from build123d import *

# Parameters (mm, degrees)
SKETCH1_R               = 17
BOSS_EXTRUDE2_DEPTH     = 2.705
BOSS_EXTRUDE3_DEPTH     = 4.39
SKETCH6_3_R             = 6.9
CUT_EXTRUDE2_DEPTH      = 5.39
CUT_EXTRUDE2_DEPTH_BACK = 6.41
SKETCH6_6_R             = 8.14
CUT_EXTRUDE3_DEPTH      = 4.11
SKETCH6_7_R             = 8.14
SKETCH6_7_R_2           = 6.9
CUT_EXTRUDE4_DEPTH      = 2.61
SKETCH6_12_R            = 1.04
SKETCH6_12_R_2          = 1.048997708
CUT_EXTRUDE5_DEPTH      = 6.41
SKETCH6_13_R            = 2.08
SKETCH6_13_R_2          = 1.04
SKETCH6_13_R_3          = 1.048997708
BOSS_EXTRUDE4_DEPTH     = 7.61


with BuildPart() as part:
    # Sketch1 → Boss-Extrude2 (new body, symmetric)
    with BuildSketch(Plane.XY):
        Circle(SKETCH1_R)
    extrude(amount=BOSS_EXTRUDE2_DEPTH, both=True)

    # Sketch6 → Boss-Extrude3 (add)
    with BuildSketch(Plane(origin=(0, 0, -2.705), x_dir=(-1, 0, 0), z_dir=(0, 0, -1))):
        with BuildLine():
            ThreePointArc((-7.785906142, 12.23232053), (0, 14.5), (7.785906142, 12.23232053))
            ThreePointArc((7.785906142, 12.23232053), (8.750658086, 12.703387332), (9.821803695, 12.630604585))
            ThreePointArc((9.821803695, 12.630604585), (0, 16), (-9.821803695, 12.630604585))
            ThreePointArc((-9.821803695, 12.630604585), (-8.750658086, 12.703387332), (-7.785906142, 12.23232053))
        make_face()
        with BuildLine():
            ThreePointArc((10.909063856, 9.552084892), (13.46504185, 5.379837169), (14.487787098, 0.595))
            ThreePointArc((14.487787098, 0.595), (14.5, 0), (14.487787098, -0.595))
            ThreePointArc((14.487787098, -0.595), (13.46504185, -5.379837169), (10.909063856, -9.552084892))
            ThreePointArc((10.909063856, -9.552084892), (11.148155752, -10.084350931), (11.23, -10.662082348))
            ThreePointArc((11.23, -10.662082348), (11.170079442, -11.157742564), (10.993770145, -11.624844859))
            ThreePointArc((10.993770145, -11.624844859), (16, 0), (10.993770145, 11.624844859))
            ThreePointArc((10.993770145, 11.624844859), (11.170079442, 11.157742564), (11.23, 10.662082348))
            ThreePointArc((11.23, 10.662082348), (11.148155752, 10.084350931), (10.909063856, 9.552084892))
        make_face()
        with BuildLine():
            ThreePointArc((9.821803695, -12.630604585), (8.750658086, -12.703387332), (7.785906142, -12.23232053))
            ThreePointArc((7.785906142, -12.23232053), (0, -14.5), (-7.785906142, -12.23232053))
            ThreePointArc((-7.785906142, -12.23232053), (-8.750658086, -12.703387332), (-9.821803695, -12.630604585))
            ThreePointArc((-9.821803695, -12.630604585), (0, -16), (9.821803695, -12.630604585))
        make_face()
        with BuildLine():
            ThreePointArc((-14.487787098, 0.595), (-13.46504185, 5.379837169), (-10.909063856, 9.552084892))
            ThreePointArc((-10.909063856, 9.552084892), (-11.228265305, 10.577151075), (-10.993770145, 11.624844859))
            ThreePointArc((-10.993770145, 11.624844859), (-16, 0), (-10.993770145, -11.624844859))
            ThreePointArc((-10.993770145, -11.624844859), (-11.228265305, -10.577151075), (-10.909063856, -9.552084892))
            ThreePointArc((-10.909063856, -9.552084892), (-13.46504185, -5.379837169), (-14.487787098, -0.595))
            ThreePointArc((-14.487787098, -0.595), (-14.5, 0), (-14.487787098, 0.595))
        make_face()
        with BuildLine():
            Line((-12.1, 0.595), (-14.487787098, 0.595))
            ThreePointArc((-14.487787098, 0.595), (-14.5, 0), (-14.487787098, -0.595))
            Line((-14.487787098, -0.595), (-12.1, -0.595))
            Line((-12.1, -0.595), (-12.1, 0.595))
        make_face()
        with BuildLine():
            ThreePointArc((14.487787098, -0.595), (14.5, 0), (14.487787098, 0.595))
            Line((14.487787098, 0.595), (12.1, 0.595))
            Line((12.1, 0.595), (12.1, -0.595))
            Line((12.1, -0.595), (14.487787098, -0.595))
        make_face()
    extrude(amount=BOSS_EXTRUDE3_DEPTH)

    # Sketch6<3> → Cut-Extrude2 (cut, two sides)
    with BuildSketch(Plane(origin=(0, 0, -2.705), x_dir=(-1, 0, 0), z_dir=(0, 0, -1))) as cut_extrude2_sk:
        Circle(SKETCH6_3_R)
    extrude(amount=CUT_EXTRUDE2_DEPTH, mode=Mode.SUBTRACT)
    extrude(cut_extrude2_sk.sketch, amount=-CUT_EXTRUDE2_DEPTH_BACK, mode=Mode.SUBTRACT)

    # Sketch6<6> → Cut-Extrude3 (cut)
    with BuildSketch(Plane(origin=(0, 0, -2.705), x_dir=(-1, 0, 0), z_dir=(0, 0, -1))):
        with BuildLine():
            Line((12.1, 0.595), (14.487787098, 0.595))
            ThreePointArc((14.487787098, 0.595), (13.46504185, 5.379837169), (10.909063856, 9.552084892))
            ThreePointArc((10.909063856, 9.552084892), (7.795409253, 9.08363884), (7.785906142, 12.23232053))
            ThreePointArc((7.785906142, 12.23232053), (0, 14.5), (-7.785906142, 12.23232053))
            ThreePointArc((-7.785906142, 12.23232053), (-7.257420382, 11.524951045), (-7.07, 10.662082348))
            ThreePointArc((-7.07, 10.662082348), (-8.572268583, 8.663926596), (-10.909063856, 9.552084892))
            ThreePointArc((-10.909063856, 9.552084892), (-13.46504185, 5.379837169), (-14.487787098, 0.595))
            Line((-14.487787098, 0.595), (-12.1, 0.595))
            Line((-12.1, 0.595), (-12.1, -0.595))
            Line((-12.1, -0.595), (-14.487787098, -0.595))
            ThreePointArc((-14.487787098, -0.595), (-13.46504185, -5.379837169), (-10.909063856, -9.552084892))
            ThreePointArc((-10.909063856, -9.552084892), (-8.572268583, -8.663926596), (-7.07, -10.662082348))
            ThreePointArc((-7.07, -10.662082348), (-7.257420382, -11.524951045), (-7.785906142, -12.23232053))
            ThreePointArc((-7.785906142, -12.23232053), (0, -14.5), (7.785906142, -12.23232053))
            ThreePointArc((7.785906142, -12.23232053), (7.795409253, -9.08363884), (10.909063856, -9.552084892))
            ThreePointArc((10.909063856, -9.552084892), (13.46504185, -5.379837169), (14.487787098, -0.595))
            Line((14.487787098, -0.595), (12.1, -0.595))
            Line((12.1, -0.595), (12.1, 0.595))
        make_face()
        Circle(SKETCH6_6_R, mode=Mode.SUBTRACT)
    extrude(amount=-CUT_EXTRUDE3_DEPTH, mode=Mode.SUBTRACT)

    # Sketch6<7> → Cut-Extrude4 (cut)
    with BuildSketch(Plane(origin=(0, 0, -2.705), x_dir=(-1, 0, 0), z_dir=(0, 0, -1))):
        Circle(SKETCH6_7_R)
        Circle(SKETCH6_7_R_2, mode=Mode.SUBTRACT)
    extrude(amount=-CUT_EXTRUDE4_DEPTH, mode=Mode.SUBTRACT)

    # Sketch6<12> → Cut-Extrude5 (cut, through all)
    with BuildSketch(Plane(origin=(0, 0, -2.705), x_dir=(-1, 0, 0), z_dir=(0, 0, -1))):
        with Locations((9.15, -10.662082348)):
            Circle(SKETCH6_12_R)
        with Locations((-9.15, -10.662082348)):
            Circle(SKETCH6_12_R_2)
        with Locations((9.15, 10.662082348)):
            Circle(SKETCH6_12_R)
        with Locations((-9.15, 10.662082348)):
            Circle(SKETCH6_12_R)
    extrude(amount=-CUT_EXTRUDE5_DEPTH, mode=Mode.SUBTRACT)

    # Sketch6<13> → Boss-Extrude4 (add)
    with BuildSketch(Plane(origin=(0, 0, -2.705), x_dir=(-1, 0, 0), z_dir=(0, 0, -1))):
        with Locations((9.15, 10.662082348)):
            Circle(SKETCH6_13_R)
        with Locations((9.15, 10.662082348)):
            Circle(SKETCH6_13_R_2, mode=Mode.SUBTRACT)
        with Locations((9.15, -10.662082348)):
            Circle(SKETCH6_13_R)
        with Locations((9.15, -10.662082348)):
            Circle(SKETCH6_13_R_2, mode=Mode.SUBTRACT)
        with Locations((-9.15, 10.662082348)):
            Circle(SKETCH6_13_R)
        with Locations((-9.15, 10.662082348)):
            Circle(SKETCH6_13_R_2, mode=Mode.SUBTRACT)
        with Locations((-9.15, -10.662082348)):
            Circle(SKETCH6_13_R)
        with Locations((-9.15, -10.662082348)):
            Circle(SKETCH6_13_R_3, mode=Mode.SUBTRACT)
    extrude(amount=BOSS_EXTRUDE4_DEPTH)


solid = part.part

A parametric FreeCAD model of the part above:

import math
import FreeCAD as App
import Part
import Sketcher

V = App.Vector

doc = App.newDocument("Part")
body = doc.addObject("PartDesign::Body", "Body")

# Sketch on XY plane
sketch1 = body.newObject("Sketcher::SketchObject", "Sketch")
sketch1.AttachmentSupport = (doc.getObject("XY_Plane"), [""])
sketch1.MapMode = "FlatFace"
sketch1.addGeometry(Part.Circle(V(0, 0, 0), V(0, 0, 1), 17), False)
sketch1.addConstraint([
    Sketcher.Constraint("Coincident", 0, 3, -1, 1),
    Sketcher.Constraint("Diameter", 0, 34.0),
])
pad1 = body.newObject("PartDesign::Pad", "Pad")
pad1.Profile = sketch1
pad1.Length = 5.41
pad1.Midplane = True

# Sketch on XY plane
sketch2 = body.newObject("Sketcher::SketchObject", "Sketch001")
sketch2.AttachmentSupport = (doc.getObject("XY_Plane"), [""])
sketch2.MapMode = "FlatFace"
sketch2.AttachmentOffset = App.Placement(V(0, 0, -2.705), App.Rotation())
sketch2.addGeometry([
    Part.ArcOfCircle(Part.Circle(V(0, 0, 0), V(0, 0, 1), 14.5), math.radians(58), math.radians(122)),  # 0
    Part.ArcOfCircle(Part.Circle(V(-9.2, 10.7, 0), V(0, 0, 1), 2.1), math.radians(49), math.radians(109)),  # 1
    Part.ArcOfCircle(Part.Circle(V(0, 0, 0), V(0, 0, 1), 16), math.radians(52), math.radians(128)),  # 2
    Part.ArcOfCircle(Part.Circle(V(9.2, 10.7, 0), V(0, 0, 1), 2.1), math.radians(71), math.radians(131)),  # 3
    Part.ArcOfCircle(Part.Circle(V(0, 0, 0), V(0, 0, 1), 14.5), math.radians(139), math.radians(178)),  # 4
    Part.LineSegment(V(-14.5, 0.6, 0), V(-12.1, 0.6, 0)),  # 5
    Part.LineSegment(V(-12.1, 0.6, 0), V(-12.1, -0.6, 0)),  # 6
    Part.LineSegment(V(-12.1, -0.6, 0), V(-14.5, -0.6, 0)),  # 7
    Part.ArcOfCircle(Part.Circle(V(0, 0, 0), V(0, 0, 1), 14.5), math.radians(-178), math.radians(-139)),  # 8
    Part.ArcOfCircle(Part.Circle(V(-9.1, -10.7, 0), V(0, 0, 1), 2.1), math.radians(148), math.radians(180)),  # 9
    Part.ArcOfCircle(Part.Circle(V(-9.2, -10.7, 0), V(0, 0, 1), 2.1), math.radians(180), math.radians(208)),  # 10
    Part.ArcOfCircle(Part.Circle(V(0, 0, 0), V(0, 0, 1), 16), math.radians(133), math.radians(227)),  # 11
    Part.ArcOfCircle(Part.Circle(V(-9.2, 10.7, 0), V(0, 0, 1), 2.1), math.radians(152), math.radians(180)),  # 12
    Part.ArcOfCircle(Part.Circle(V(-9.1, 10.7, 0), V(0, 0, 1), 2.1), math.radians(-180), math.radians(-148)),  # 13
    Part.ArcOfCircle(Part.Circle(V(-9.2, -10.7, 0), V(0, 0, 1), 2.1), math.radians(-109), math.radians(-49)),  # 14
    Part.ArcOfCircle(Part.Circle(V(0, 0, 0), V(0, 0, 1), 14.5), math.radians(-122), math.radians(-58)),  # 15
    Part.ArcOfCircle(Part.Circle(V(9.2, -10.7, 0), V(0, 0, 1), 2.1), math.radians(-131), math.radians(-71)),  # 16
    Part.ArcOfCircle(Part.Circle(V(0, 0, 0), V(0, 0, 1), 16), math.radians(-128), math.radians(-52)),  # 17
    Part.ArcOfCircle(Part.Circle(V(0, 0, 0), V(0, 0, 1), 14.5), math.radians(2), math.radians(41)),  # 18
    Part.ArcOfCircle(Part.Circle(V(9.1, 10.7, 0), V(0, 0, 1), 2.1), math.radians(-32), math.radians(28)),  # 19
    Part.ArcOfCircle(Part.Circle(V(0, 0, 0), V(0, 0, 1), 16), math.radians(-47), math.radians(47)),  # 20
    Part.ArcOfCircle(Part.Circle(V(9.1, -10.7, 0), V(0, 0, 1), 2.1), math.radians(-28), math.radians(32)),  # 21
    Part.ArcOfCircle(Part.Circle(V(0, 0, 0), V(0, 0, 1), 14.5), math.radians(-41), math.radians(-2)),  # 22
    Part.LineSegment(V(14.5, -0.6, 0), V(12.1, -0.6, 0)),  # 23
    Part.LineSegment(V(12.1, -0.6, 0), V(12.1, 0.6, 0)),  # 24
    Part.LineSegment(V(12.1, 0.6, 0), V(14.5, 0.6, 0)),  # 25
], False)
sketch2.addConstraint([
    Sketcher.Constraint("Coincident", 0, 2, 1, 1),
    Sketcher.Constraint("Coincident", 1, 2, 2, 2),
    Sketcher.Constraint("Coincident", 2, 1, 3, 1),
    Sketcher.Constraint("Coincident", 3, 2, 0, 1),
    Sketcher.Constraint("Coincident", 4, 2, 5, 1),
    Sketcher.Constraint("Coincident", 5, 2, 6, 1),
    Sketcher.Constraint("Coincident", 6, 2, 7, 1),
    Sketcher.Constraint("Coincident", 7, 2, 8, 1),
    Sketcher.Constraint("Coincident", 8, 2, 9, 1),
    Sketcher.Constraint("Tangent", 9, 2, 10, 1),
    Sketcher.Constraint("Coincident", 10, 2, 11, 2),
    Sketcher.Constraint("Coincident", 11, 1, 12, 1),
    Sketcher.Constraint("Tangent", 12, 2, 13, 1),
    Sketcher.Constraint("Coincident", 13, 2, 4, 1),
    Sketcher.Constraint("Coincident", 14, 2, 15, 1),
    Sketcher.Constraint("Coincident", 15, 2, 16, 1),
    Sketcher.Constraint("Coincident", 16, 2, 17, 2),
    Sketcher.Constraint("Coincident", 17, 1, 14, 1),
    Sketcher.Constraint("Coincident", 18, 2, 19, 1),
    Sketcher.Constraint("Coincident", 19, 2, 20, 2),
    Sketcher.Constraint("Coincident", 20, 1, 21, 1),
    Sketcher.Constraint("Coincident", 21, 2, 22, 1),
    Sketcher.Constraint("Coincident", 22, 2, 23, 1),
    Sketcher.Constraint("Coincident", 23, 2, 24, 1),
    Sketcher.Constraint("Coincident", 24, 2, 25, 1),
    Sketcher.Constraint("Coincident", 25, 2, 18, 1),
    Sketcher.Constraint("Horizontal", 5),
    Sketcher.Constraint("Vertical", 6),
    Sketcher.Constraint("Horizontal", 7),
    Sketcher.Constraint("Horizontal", 23),
    Sketcher.Constraint("Vertical", 24),
    Sketcher.Constraint("Horizontal", 25),
    Sketcher.Constraint("Coincident", 0, 3, -1, 1),
    Sketcher.Constraint("Coincident", 2, 3, -1, 1),
    Sketcher.Constraint("Coincident", 4, 3, -1, 1),
    Sketcher.Constraint("Coincident", 8, 3, -1, 1),
    Sketcher.Constraint("Coincident", 11, 3, -1, 1),
    Sketcher.Constraint("Coincident", 15, 3, -1, 1),
    Sketcher.Constraint("Coincident", 17, 3, -1, 1),
    Sketcher.Constraint("Coincident", 18, 3, -1, 1),
    Sketcher.Constraint("Coincident", 20, 3, -1, 1),
    Sketcher.Constraint("Coincident", 22, 3, -1, 1),
    Sketcher.Constraint("Coincident", 12, 3, 1, 3),
    Sketcher.Constraint("Coincident", 14, 3, 9, 3),
    Sketcher.Constraint("Coincident", 19, 3, 3, 3),
    Sketcher.Constraint("Coincident", 21, 3, 16, 3),
    Sketcher.Constraint("Equal", 1, 3),
    Sketcher.Constraint("Equal", 0, 4),
    Sketcher.Constraint("Equal", 4, 8),
    Sketcher.Constraint("Equal", 3, 9),
    Sketcher.Constraint("Equal", 9, 10),
    Sketcher.Constraint("Equal", 2, 11),
    Sketcher.Constraint("Equal", 10, 12),
    Sketcher.Constraint("Equal", 12, 13),
    Sketcher.Constraint("Equal", 13, 14),
    Sketcher.Constraint("Equal", 8, 15),
    Sketcher.Constraint("Equal", 14, 16),
    Sketcher.Constraint("Equal", 11, 17),
    Sketcher.Constraint("Equal", 15, 18),
    Sketcher.Constraint("Equal", 16, 19),
    Sketcher.Constraint("Equal", 17, 20),
    Sketcher.Constraint("Equal", 19, 21),
    Sketcher.Constraint("Equal", 18, 22),
    Sketcher.Constraint("Symmetric", 3, 3, 9, 3, -1, 1),
    Sketcher.Constraint("Symmetric", 1, 3, 16, 3, -1, 1),
    Sketcher.Constraint("Symmetric", 5, 2, 23, 2, -1, 1),
    Sketcher.Constraint("Symmetric", 1, 3, 3, 3, -2),
    Sketcher.Constraint("Horizontal", 21, 3, 9, 2),
    Sketcher.Constraint("Horizontal", 19, 3, 12, 2),
    Sketcher.Constraint("Horizontal", 7, 2, 22, 2),
    Sketcher.Constraint("Horizontal", 5, 2, 24, 2),
    Sketcher.Constraint("Radius", 2, 16.0),
    Sketcher.Constraint("Radius", 0, 14.5),
    Sketcher.Constraint("Radius", 1, 2.08),
    Sketcher.Constraint("DistanceY", 6, 2, 6, 1, 1.19),
    Sketcher.Constraint("DistanceX", 5, 2, -1, 1, 12.1),
    Sketcher.Constraint("DistanceX", 1, 3, 3, 3, 18.3),
    Sketcher.Constraint("DistanceY", -1, 1, 0, 2, 12.232321),
])
pad2 = body.newObject("PartDesign::Pad", "Pad001")
pad2.Profile = sketch2
pad2.Length = 4.39
pad2.Reversed = True

# Sketch on XY plane
sketch3 = body.newObject("Sketcher::SketchObject", "Sketch002")
sketch3.AttachmentSupport = (doc.getObject("XY_Plane"), [""])
sketch3.MapMode = "FlatFace"
sketch3.AttachmentOffset = App.Placement(V(0, 0, -2.705), App.Rotation())
sketch3.addGeometry(Part.Circle(V(0, 0, 0), V(0, 0, 1), 7), False)
sketch3.addConstraint([
    Sketcher.Constraint("Coincident", 0, 3, -1, 1),
    Sketcher.Constraint("Diameter", 0, 13.8),
])
pocket1 = body.newObject("PartDesign::Pocket", "Pocket")
pocket1.Profile = sketch3
pocket1.Type = "ThroughAll"
pocket1.Midplane = True

# Sketch on XY plane
sketch4 = body.newObject("Sketcher::SketchObject", "Sketch003")
sketch4.AttachmentSupport = (doc.getObject("XY_Plane"), [""])
sketch4.MapMode = "FlatFace"
sketch4.AttachmentOffset = App.Placement(V(0, 0, -2.705), App.Rotation())
sketch4.addGeometry([
    Part.LineSegment(V(-12.1, 0.6, 0), V(-14.5, 0.6, 0)),  # 0
    Part.ArcOfCircle(Part.Circle(V(0, 0, 0), V(0, 0, 1), 14.5), math.radians(139), math.radians(178)),  # 1
    Part.ArcOfCircle(Part.Circle(V(-9.2, 10.7, 0), V(0, 0, 1), 2.1), math.radians(-148), math.radians(49)),  # 2
    Part.ArcOfCircle(Part.Circle(V(0, 0, 0), V(0, 0, 1), 14.5), math.radians(58), math.radians(122)),  # 3
    Part.ArcOfCircle(Part.Circle(V(9.2, 10.7, 0), V(0, 0, 1), 2.1), math.radians(131), math.radians(180)),  # 4
    Part.ArcOfCircle(Part.Circle(V(9.2, 10.7, 0), V(0, 0, 1), 2.1), math.radians(180), math.radians(328)),  # 5
    Part.ArcOfCircle(Part.Circle(V(0, 0, 0), V(0, 0, 1), 14.5), math.radians(2), math.radians(41)),  # 6
    Part.LineSegment(V(14.5, 0.6, 0), V(12.1, 0.6, 0)),  # 7
    Part.LineSegment(V(12.1, 0.6, 0), V(12.1, -0.6, 0)),  # 8
    Part.LineSegment(V(12.1, -0.6, 0), V(14.5, -0.6, 0)),  # 9
    Part.ArcOfCircle(Part.Circle(V(0, 0, 0), V(0, 0, 1), 14.5), math.radians(-41), math.radians(-2)),  # 10
    Part.ArcOfCircle(Part.Circle(V(9.2, -10.7, 0), V(0, 0, 1), 2.1), math.radians(32), math.radians(180)),  # 11
    Part.ArcOfCircle(Part.Circle(V(9.2, -10.7, 0), V(0, 0, 1), 2.1), math.radians(-180), math.radians(-131)),  # 12
    Part.ArcOfCircle(Part.Circle(V(0, 0, 0), V(0, 0, 1), 14.5), math.radians(-122), math.radians(-58)),  # 13
    Part.ArcOfCircle(Part.Circle(V(-9.2, -10.7, 0), V(0, 0, 1), 2.1), math.radians(-49), math.radians(148)),  # 14
    Part.ArcOfCircle(Part.Circle(V(0, 0, 0), V(0, 0, 1), 14.5), math.radians(-178), math.radians(-139)),  # 15
    Part.LineSegment(V(-14.5, -0.6, 0), V(-12.1, -0.6, 0)),  # 16
    Part.LineSegment(V(-12.1, -0.6, 0), V(-12.1, 0.6, 0)),  # 17
    Part.Circle(V(0, 0, 0), V(0, 0, 1), 8.1),  # 18
], False)
sketch4.addConstraint([
    Sketcher.Constraint("Coincident", 0, 2, 1, 2),
    Sketcher.Constraint("Coincident", 1, 1, 2, 1),
    Sketcher.Constraint("Coincident", 2, 2, 3, 2),
    Sketcher.Constraint("Coincident", 3, 1, 4, 1),
    Sketcher.Constraint("Tangent", 4, 2, 5, 1),
    Sketcher.Constraint("Coincident", 5, 2, 6, 2),
    Sketcher.Constraint("Coincident", 6, 1, 7, 1),
    Sketcher.Constraint("Coincident", 7, 2, 8, 1),
    Sketcher.Constraint("Coincident", 8, 2, 9, 1),
    Sketcher.Constraint("Coincident", 9, 2, 10, 2),
    Sketcher.Constraint("Coincident", 10, 1, 11, 1),
    Sketcher.Constraint("Tangent", 11, 2, 12, 1),
    Sketcher.Constraint("Coincident", 12, 2, 13, 2),
    Sketcher.Constraint("Coincident", 13, 1, 14, 1),
    Sketcher.Constraint("Coincident", 14, 2, 15, 2),
    Sketcher.Constraint("Coincident", 15, 1, 16, 1),
    Sketcher.Constraint("Coincident", 16, 2, 17, 1),
    Sketcher.Constraint("Coincident", 17, 2, 0, 1),
    Sketcher.Constraint("Horizontal", 0),
    Sketcher.Constraint("Horizontal", 7),
    Sketcher.Constraint("Vertical", 8),
    Sketcher.Constraint("Horizontal", 9),
    Sketcher.Constraint("Horizontal", 16),
    Sketcher.Constraint("Vertical", 17),
    Sketcher.Constraint("Coincident", 1, 3, -1, 1),
    Sketcher.Constraint("Coincident", 3, 3, -1, 1),
    Sketcher.Constraint("Coincident", 6, 3, -1, 1),
    Sketcher.Constraint("Coincident", 10, 3, -1, 1),
    Sketcher.Constraint("Coincident", 13, 3, -1, 1),
    Sketcher.Constraint("Coincident", 15, 3, -1, 1),
    Sketcher.Constraint("Coincident", 18, 3, -1, 1),
    Sketcher.Constraint("Equal", 1, 3),
    Sketcher.Constraint("Equal", 2, 4),
    Sketcher.Constraint("Equal", 4, 5),
    Sketcher.Constraint("Equal", 3, 6),
    Sketcher.Constraint("Equal", 6, 10),
    Sketcher.Constraint("Equal", 5, 11),
    Sketcher.Constraint("Equal", 11, 12),
    Sketcher.Constraint("Equal", 10, 13),
    Sketcher.Constraint("Equal", 12, 14),
    Sketcher.Constraint("Equal", 13, 15),
    Sketcher.Constraint("Symmetric", 2, 3, 11, 3, -1, 1),
    Sketcher.Constraint("Symmetric", 4, 3, 14, 3, -1, 1),
    Sketcher.Constraint("Symmetric", 7, 2, 16, 2, -1, 1),
    Sketcher.Constraint("Symmetric", 2, 3, 4, 3, -2),
    Sketcher.Constraint("Horizontal", 5, 3, 4, 2),
    Sketcher.Constraint("Horizontal", 0, 2, 6, 1),
    Sketcher.Constraint("Horizontal", 14, 3, 11, 2),
    Sketcher.Constraint("Horizontal", 9, 2, 15, 1),
    Sketcher.Constraint("Radius", 1, 14.5),
    Sketcher.Constraint("Diameter", 18, 16.28),
    Sketcher.Constraint("Radius", 2, 2.08),
    Sketcher.Constraint("DistanceY", 8, 2, 8, 1, 1.19),
    Sketcher.Constraint("DistanceX", -1, 1, 7, 2, 12.1),
    Sketcher.Constraint("DistanceX", 2, 3, 4, 3, 18.3),
    Sketcher.Constraint("DistanceY", -1, 1, 2, 2, 12.232321),
])
pocket2 = body.newObject("PartDesign::Pocket", "Pocket001")
pocket2.Profile = sketch4
pocket2.Length = 4.11
pocket2.Reversed = True

# Sketch on XY plane
sketch5 = body.newObject("Sketcher::SketchObject", "Sketch004")
sketch5.AttachmentSupport = (doc.getObject("XY_Plane"), [""])
sketch5.MapMode = "FlatFace"
sketch5.AttachmentOffset = App.Placement(V(0, 0, -2.705), App.Rotation())
sketch5.addGeometry([
    Part.Circle(V(0, 0, 0), V(0, 0, 1), 8),
    Part.Circle(V(0, 0, 0), V(0, 0, 1), 7),
], False)
sketch5.addConstraint([
    Sketcher.Constraint("Coincident", 0, 3, -1, 1),
    Sketcher.Constraint("Coincident", 1, 3, -1, 1),
    Sketcher.Constraint("Diameter", 1, 13.8),
    Sketcher.Constraint("Diameter", 0, 16.28),
])
pocket3 = body.newObject("PartDesign::Pocket", "Pocket002")
pocket3.Profile = sketch5
pocket3.Length = 2.61
pocket3.Reversed = True

# Sketch on XY plane
sketch6 = body.newObject("Sketcher::SketchObject", "Sketch005")
sketch6.AttachmentSupport = (doc.getObject("XY_Plane"), [""])
sketch6.MapMode = "FlatFace"
sketch6.AttachmentOffset = App.Placement(V(0, 0, -2.705), App.Rotation())
sketch6.addGeometry([
    Part.Circle(V(-9.2, -10.7, 0), V(0, 0, 1), 1),
    Part.Circle(V(9.2, -10.7, 0), V(0, 0, 1), 1),
    Part.Circle(V(-9.2, 10.7, 0), V(0, 0, 1), 1),
    Part.Circle(V(9.2, 10.7, 0), V(0, 0, 1), 1),
], False)
sketch6.addConstraint([
    Sketcher.Constraint("Equal", 0, 2),
    Sketcher.Constraint("Equal", 2, 3),
    Sketcher.Constraint("Symmetric", 1, 3, 2, 3, -1, 1),
    Sketcher.Constraint("Symmetric", 0, 3, 3, 3, -1, 1),
    Sketcher.Constraint("Symmetric", 0, 3, 1, 3, -2),
    Sketcher.Constraint("Diameter", 0, 2.08),
    Sketcher.Constraint("DistanceX", 0, 3, 1, 3, 18.3),
    Sketcher.Constraint("Diameter", 1, 2.097995),
    Sketcher.Constraint("DistanceY", 0, 3, -1, 1, 10.662082),
])
pocket4 = body.newObject("PartDesign::Pocket", "Pocket003")
pocket4.Profile = sketch6
pocket4.Type = "ThroughAll"
pocket4.Reversed = True

# Sketch on XY plane
sketch7 = body.newObject("Sketcher::SketchObject", "Sketch006")
sketch7.AttachmentSupport = (doc.getObject("XY_Plane"), [""])
sketch7.MapMode = "FlatFace"
sketch7.AttachmentOffset = App.Placement(V(0, 0, -2.705), App.Rotation())
sketch7.addGeometry([
    Part.Circle(V(-9.2, 10.7, 0), V(0, 0, 1), 2.1),  # 0
    Part.Circle(V(-9.2, 10.7, 0), V(0, 0, 1), 1),  # 1
    Part.Circle(V(-9.2, -10.7, 0), V(0, 0, 1), 2.1),  # 2
    Part.Circle(V(-9.2, -10.7, 0), V(0, 0, 1), 1),  # 3
    Part.Circle(V(9.2, 10.7, 0), V(0, 0, 1), 2.1),  # 4
    Part.Circle(V(9.2, 10.7, 0), V(0, 0, 1), 1),  # 5
    Part.Circle(V(9.2, -10.7, 0), V(0, 0, 1), 2.1),  # 6
    Part.Circle(V(9.2, -10.7, 0), V(0, 0, 1), 1),  # 7
], False)
sketch7.addConstraint([
    Sketcher.Constraint("Coincident", 1, 3, 0, 3),
    Sketcher.Constraint("Coincident", 3, 3, 2, 3),
    Sketcher.Constraint("Coincident", 5, 3, 4, 3),
    Sketcher.Constraint("Coincident", 7, 3, 6, 3),
    Sketcher.Constraint("Equal", 0, 2),
    Sketcher.Constraint("Equal", 1, 3),
    Sketcher.Constraint("Equal", 2, 4),
    Sketcher.Constraint("Equal", 3, 5),
    Sketcher.Constraint("Equal", 4, 6),
    Sketcher.Constraint("Symmetric", 2, 3, 4, 3, -1, 1),
    Sketcher.Constraint("Symmetric", 0, 3, 6, 3, -1, 1),
    Sketcher.Constraint("Symmetric", 0, 3, 4, 3, -2),
    Sketcher.Constraint("Diameter", 0, 4.16),
    Sketcher.Constraint("Diameter", 1, 2.08),
    Sketcher.Constraint("DistanceX", 0, 3, 4, 3, 18.3),
    Sketcher.Constraint("Diameter", 7, 2.097995),
    Sketcher.Constraint("DistanceY", -1, 1, 0, 3, 10.662082),
])
pad3 = body.newObject("PartDesign::Pad", "Pad002")
pad3.Profile = sketch7
pad3.Length = 7.61
pad3.Reversed = True

doc.recompute()
